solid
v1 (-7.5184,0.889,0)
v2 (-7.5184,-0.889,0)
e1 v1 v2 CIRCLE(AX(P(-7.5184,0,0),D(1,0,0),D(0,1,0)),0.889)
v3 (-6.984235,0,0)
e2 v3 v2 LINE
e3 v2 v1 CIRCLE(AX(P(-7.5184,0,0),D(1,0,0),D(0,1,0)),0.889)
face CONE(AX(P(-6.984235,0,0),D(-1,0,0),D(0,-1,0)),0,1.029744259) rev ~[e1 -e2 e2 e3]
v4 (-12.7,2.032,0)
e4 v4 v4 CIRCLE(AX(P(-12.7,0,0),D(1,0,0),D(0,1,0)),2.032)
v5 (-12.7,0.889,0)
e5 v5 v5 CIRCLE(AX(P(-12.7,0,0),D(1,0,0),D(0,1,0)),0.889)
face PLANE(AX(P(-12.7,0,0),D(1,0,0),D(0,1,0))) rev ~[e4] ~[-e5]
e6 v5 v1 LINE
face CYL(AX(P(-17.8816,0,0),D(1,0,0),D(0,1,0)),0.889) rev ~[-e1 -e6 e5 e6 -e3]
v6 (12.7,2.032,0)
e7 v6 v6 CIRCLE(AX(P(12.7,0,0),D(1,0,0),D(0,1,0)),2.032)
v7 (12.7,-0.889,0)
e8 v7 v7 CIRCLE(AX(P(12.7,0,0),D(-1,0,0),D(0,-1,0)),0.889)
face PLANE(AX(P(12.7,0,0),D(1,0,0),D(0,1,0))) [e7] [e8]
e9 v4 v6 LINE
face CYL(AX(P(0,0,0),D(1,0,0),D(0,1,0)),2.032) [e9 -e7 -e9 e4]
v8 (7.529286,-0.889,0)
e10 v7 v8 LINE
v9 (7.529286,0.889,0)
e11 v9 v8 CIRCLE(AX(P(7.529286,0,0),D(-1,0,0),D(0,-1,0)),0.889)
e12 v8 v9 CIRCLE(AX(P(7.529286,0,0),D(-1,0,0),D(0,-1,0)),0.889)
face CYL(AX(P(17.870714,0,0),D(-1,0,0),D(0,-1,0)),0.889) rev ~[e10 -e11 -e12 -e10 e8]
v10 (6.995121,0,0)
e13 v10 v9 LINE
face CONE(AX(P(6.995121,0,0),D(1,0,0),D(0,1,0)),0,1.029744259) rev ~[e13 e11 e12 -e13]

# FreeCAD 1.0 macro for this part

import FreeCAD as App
import Part
import Sketcher

V = App.Vector
Q = App.Units.Quantity

doc = App.newDocument("Part")
params = doc.addObject("Spreadsheet::Sheet", "Params")
for row, (alias, value) in enumerate([
    ("sketch1_diameter", "0.16 in"),
    ("pad1_length", "1 in"),
    ("sketch2_diameter", "0.07 in"),
    ("hole_diameter", "0.07 in"),
    ("hole_depth", "5.170714 mm"),
    ("sketch3_diameter", "0.07 in"),
    ("hole2_diameter", "0.07 in"),
    ("hole2_depth", "0.204 in"),
], start=1):
    params.set(f"A{row}", alias)
    params.set(f"B{row}", "=" + value)
    params.setAlias(f"B{row}", alias)

body = doc.addObject("PartDesign::Body", "Body")

# Sketch on YZ plane
sketch1 = body.newObject("Sketcher::SketchObject", "Sketch")
sketch1.AttachmentSupport = (doc.getObject("YZ_Plane"), [""])
sketch1.MapMode = "FlatFace"
sketch1.addGeometry(Part.Circle(V(0, 0, 0), V(0, 0, 1), 2), False)
sketch1.addConstraint([
    Sketcher.Constraint("Coincident", 0, 3, -1, 1),
    Sketcher.Constraint("Diameter", 0, Q("0.16 in")),
])
sketch1.setExpression("Constraints[1]", "Params.sketch1_diameter")
pad1 = body.newObject("PartDesign::Pad", "Pad")
pad1.Profile = sketch1
pad1.setExpression("Length", "Params.pad1_length")
pad1.Midplane = True

# Sketch on YZ plane
sketch2 = body.newObject("Sketcher::SketchObject", "Sketch001")
sketch2.AttachmentSupport = (doc.getObject("YZ_Plane"), [""])
sketch2.MapMode = "FlatFace"
sketch2.AttachmentOffset = App.Placement(V(0, 0, 0.5 * 25.4), App.Rotation())
sketch2.addGeometry(Part.Circle(V(0, 0, 0), V(0, 0, 1), 0.9), False)
sketch2.addConstraint([
    Sketcher.Constraint("Coincident", 0, 3, -1, 1),
    Sketcher.Constraint("Diameter", 0, Q("0.07 in")),
])
sketch2.setExpression("Constraints[1]", "Params.sketch2_diameter")
doc.recompute()
hole = body.newObject("PartDesign::Hole", "Hole")
hole.Profile = sketch2
hole.ThreadType = "None"
hole.setExpression("Diameter", "Params.hole_diameter")
hole.DepthType = "Dimension"
hole.setExpression("Depth", "Params.hole_depth")
hole.DrillPoint = "Angled"
hole.DrillPointAngle = 118

# Sketch on YZ plane
sketch3 = body.newObject("Sketcher::SketchObject", "Sketch002")
sketch3.AttachmentSupport = (doc.getObject("YZ_Plane"), [""])
sketch3.MapMode = "FlatFace"
sketch3.AttachmentOffset = App.Placement(V(0, 0, -0.5 * 25.4), App.Rotation())
sketch3.addGeometry(Part.Circle(V(0, 0, 0), V(0, 0, 1), 0.9), False)
sketch3.addConstraint([
    Sketcher.Constraint("Coincident", 0, 3, -1, 1),
    Sketcher.Constraint("Diameter", 0, Q("0.07 in")),
])
sketch3.setExpression("Constraints[1]", "Params.sketch3_diameter")
doc.recompute()
hole2 = body.newObject("PartDesign::Hole", "Hole001")
hole2.Profile = sketch3
hole2.ThreadType = "None"
hole2.setExpression("Diameter", "Params.hole2_diameter")
hole2.DepthType = "Dimension"
hole2.setExpression("Depth", "Params.hole2_depth")
hole2.DrillPoint = "Angled"
hole2.DrillPointAngle = 118
hole2.Reversed = True

doc.recompute()
